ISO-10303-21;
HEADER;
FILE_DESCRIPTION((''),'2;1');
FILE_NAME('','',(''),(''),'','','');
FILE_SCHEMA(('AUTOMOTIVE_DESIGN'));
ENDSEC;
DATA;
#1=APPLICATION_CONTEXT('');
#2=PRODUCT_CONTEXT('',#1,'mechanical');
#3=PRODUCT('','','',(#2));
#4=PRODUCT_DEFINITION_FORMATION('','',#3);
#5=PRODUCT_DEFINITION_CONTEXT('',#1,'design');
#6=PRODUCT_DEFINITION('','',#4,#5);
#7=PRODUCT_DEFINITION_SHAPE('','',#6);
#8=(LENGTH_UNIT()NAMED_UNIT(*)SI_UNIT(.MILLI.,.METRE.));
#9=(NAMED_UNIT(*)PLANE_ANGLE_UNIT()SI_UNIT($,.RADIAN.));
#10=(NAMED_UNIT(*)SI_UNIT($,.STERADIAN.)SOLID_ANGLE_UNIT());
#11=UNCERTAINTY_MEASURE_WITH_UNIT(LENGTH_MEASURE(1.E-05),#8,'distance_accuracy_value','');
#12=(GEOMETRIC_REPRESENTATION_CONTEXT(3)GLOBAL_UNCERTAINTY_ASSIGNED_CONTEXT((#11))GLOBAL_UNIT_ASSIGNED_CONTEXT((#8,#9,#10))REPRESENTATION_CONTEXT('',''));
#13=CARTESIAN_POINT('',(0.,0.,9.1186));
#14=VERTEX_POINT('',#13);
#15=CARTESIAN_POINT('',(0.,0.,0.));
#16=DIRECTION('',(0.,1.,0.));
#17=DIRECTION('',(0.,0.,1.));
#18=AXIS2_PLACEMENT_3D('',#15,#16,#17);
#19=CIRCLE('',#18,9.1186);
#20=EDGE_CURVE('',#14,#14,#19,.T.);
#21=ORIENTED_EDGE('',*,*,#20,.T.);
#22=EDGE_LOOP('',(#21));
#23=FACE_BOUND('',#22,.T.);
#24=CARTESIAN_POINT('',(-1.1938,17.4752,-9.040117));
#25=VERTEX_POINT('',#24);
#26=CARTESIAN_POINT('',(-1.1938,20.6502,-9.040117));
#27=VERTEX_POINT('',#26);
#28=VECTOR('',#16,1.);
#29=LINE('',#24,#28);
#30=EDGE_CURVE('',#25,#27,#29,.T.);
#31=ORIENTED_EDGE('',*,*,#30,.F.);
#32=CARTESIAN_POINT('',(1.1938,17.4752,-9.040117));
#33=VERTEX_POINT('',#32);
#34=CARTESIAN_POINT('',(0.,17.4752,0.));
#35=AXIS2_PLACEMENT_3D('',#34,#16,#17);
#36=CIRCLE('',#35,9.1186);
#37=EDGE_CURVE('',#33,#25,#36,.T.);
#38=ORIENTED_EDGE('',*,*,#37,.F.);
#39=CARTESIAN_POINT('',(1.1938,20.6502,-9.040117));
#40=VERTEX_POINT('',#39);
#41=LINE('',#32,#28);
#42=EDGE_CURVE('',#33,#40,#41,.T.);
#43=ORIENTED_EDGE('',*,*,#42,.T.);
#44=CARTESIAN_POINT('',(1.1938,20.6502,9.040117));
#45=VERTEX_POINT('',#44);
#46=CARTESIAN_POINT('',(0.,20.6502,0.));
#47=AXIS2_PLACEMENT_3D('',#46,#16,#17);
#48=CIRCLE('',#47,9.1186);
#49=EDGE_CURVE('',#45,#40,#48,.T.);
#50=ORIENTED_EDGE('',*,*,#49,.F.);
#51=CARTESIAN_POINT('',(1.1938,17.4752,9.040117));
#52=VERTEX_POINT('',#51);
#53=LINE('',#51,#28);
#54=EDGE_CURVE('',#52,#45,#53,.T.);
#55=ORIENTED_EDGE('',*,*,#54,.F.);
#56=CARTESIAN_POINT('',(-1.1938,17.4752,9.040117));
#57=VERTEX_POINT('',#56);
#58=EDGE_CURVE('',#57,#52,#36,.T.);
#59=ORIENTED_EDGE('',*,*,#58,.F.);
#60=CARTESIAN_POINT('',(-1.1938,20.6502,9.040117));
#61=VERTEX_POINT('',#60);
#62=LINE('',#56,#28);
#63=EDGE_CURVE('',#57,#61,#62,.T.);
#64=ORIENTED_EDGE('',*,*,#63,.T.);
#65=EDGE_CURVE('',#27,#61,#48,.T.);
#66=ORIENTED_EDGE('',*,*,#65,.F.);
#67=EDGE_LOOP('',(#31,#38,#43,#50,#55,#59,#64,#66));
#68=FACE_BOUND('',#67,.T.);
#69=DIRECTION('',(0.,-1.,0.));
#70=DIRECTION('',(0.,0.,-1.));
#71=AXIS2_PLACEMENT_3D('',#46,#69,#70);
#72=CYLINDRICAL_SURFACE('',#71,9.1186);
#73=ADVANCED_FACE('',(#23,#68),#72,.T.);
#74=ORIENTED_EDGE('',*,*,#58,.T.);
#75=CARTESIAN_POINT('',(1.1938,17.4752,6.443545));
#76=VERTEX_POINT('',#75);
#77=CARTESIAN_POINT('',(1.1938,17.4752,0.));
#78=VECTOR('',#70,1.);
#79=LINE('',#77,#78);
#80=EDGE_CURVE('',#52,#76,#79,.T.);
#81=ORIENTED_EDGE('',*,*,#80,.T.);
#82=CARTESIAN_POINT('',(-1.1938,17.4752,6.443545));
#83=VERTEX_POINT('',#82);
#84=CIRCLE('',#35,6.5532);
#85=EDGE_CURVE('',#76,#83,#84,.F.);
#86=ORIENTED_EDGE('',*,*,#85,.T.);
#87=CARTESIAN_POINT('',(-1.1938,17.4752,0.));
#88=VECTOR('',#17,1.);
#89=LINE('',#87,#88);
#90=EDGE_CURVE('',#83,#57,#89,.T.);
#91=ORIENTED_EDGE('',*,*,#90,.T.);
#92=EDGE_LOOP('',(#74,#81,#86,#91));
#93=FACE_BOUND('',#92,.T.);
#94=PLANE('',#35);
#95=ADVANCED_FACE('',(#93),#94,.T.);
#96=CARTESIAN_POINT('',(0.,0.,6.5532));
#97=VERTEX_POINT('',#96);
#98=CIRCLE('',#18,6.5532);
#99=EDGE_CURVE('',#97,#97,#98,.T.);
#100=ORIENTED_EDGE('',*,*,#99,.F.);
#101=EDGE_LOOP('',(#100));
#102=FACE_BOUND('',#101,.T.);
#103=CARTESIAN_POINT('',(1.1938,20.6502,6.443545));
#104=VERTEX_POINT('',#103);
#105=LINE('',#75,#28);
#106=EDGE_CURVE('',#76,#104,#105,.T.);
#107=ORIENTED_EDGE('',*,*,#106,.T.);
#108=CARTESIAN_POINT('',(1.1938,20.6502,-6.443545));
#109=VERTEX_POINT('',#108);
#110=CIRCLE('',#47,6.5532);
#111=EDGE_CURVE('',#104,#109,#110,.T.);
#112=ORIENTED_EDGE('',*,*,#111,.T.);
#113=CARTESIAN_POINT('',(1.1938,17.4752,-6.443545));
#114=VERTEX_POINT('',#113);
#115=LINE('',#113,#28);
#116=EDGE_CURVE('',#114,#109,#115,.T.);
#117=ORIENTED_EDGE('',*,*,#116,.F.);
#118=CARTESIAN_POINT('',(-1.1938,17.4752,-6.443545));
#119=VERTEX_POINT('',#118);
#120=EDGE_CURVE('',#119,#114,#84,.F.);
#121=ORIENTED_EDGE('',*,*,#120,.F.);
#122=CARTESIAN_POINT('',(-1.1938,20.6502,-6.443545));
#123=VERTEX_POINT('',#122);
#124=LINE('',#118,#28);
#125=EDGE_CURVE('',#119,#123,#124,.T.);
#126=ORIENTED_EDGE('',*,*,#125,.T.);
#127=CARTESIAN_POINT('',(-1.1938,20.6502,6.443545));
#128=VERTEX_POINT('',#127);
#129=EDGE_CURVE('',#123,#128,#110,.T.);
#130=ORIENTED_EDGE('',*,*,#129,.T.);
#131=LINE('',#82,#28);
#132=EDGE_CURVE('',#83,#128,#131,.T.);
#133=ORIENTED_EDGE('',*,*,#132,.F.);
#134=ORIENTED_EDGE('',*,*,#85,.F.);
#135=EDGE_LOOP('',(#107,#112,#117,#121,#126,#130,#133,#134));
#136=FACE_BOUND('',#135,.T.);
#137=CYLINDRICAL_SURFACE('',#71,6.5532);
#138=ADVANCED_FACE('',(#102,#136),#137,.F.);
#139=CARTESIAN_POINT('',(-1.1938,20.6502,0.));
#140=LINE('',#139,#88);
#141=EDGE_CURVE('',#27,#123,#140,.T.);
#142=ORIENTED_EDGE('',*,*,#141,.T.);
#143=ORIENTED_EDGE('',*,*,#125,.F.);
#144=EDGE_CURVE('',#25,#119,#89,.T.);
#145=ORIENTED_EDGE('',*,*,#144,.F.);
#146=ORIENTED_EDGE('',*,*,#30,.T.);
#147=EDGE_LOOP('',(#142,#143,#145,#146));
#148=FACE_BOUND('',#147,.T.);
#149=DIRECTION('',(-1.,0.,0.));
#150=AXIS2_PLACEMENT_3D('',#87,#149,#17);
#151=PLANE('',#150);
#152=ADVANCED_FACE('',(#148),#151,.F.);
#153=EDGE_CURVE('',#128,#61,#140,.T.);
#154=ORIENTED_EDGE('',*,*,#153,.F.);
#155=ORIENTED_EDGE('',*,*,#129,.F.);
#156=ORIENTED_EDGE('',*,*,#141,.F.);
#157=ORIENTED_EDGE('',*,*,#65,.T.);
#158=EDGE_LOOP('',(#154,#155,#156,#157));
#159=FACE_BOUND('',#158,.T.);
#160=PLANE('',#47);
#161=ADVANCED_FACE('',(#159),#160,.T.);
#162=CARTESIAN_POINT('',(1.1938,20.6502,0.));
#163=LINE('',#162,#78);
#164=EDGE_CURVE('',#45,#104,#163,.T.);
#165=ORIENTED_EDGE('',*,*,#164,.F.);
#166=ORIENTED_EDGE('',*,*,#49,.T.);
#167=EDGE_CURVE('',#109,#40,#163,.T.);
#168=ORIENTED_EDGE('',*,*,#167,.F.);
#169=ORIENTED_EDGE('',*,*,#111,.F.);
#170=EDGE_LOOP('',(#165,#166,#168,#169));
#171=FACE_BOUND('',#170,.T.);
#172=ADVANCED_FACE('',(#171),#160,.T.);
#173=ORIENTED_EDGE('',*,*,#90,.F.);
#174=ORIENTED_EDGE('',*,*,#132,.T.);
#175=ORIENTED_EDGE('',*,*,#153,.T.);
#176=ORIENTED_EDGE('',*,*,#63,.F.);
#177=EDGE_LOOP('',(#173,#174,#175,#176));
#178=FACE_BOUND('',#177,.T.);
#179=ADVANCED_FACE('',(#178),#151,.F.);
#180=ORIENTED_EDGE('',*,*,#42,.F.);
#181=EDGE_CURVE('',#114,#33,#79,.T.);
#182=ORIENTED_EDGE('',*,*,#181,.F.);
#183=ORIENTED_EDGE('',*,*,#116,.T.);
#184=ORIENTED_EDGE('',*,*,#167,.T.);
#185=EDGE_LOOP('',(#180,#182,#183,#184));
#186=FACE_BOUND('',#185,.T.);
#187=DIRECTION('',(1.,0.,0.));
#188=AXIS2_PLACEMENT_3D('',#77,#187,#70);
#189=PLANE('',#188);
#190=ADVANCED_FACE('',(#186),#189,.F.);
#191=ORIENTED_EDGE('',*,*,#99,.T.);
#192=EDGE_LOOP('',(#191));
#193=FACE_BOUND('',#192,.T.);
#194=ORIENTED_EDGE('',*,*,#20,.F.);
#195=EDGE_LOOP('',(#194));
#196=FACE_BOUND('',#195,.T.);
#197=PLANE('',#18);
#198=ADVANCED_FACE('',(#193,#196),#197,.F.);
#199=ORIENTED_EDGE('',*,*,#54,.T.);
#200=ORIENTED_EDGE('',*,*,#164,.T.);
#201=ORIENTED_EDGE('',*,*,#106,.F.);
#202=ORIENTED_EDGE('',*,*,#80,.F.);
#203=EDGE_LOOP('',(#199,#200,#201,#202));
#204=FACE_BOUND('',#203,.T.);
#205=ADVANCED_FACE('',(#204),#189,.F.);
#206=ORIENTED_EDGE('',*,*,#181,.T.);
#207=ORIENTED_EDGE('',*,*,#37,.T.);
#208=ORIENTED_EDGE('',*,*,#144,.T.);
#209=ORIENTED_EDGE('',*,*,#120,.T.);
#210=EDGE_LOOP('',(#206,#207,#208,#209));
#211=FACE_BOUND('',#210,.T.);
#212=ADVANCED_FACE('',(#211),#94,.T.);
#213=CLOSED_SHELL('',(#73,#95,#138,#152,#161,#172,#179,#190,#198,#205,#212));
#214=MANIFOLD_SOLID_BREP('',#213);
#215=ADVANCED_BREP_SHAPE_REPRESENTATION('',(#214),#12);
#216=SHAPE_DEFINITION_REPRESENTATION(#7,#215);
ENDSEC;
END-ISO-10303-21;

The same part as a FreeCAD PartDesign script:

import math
import FreeCAD as App
import Part
import Sketcher

V = App.Vector
Q = App.Units.Quantity

doc = App.newDocument("Part")
body = doc.addObject("PartDesign::Body", "Body")

# Sketch on XZ plane
sketch1 = body.newObject("Sketcher::SketchObject", "Sketch")
sketch1.AttachmentSupport = (doc.getObject("XZ_Plane"), [""])
sketch1.MapMode = "FlatFace"
sketch1.addGeometry([
    Part.Circle(V(0, 0, 0), V(0, 0, 1), 9),
    Part.Circle(V(0, 0, 0), V(0, 0, 1), 7),
], False)
sketch1.addConstraint([
    Sketcher.Constraint("Coincident", 0, 3, -1, 1),
    Sketcher.Constraint("Coincident", 1, 3, -1, 1),
    Sketcher.Constraint("Diameter", 0, Q("0.718 in")),
    Sketcher.Constraint("Diameter", 1, Q("0.516 in")),
])
pad1 = body.newObject("PartDesign::Pad", "Pad")
pad1.Profile = sketch1
pad1.Length = Q("0.813 in")
pad1.Reversed = True

# Sketch on XZ plane
sketch2 = body.newObject("Sketcher::SketchObject", "Sketch001")
sketch2.AttachmentSupport = (doc.getObject("XZ_Plane"), [""])
sketch2.MapMode = "FlatFace"
sketch2.AttachmentOffset = App.Placement(V(0, 0, -0.813 * 25.4), App.Rotation())
sketch2.addGeometry([
    Part.ArcOfCircle(Part.Circle(V(0, 0, 0), V(0, 0, 1), 6.6), math.radians(-100), math.radians(-80)),  # 0
    Part.LineSegment(V(1.2, -6.4, 0), V(1.2, -9, 0)),  # 1
    Part.ArcOfCircle(Part.Circle(V(0, 0, 0), V(0, 0, 1), 9.1), math.radians(-97.52), math.radians(-82.48)),  # 2
    Part.LineSegment(V(-1.2, -9, 0), V(-1.2, -6.4, 0)),  # 3
    Part.LineSegment(V(1.2, 9, 0), V(1.2, 6.4, 0)),  # 4
    Part.ArcOfCircle(Part.Circle(V(0, 0, 0), V(0, 0, 1), 6.6), math.radians(80), math.radians(100)),  # 5
    Part.LineSegment(V(-1.2, 6.4, 0), V(-1.2, 9, 0)),  # 6
    Part.ArcOfCircle(Part.Circle(V(0, 0, 0), V(0, 0, 1), 9.1), math.radians(82.48), math.radians(97.52)),  # 7
], False)
sketch2.addConstraint([
    Sketcher.Constraint("Coincident", 0, 2, 1, 1),
    Sketcher.Constraint("Coincident", 1, 2, 2, 2),
    Sketcher.Constraint("Coincident", 2, 1, 3, 1),
    Sketcher.Constraint("Coincident", 3, 2, 0, 1),
    Sketcher.Constraint("Coincident", 4, 2, 5, 1),
    Sketcher.Constraint("Coincident", 5, 2, 6, 1),
    Sketcher.Constraint("Coincident", 6, 2, 7, 2),
    Sketcher.Constraint("Coincident", 7, 1, 4, 1),
    Sketcher.Constraint("Vertical", 1),
    Sketcher.Constraint("Vertical", 3),
    Sketcher.Constraint("Vertical", 4),
    Sketcher.Constraint("Vertical", 6),
    Sketcher.Constraint("Coincident", 0, 3, -1, 1),
    Sketcher.Constraint("Coincident", 2, 3, -1, 1),
    Sketcher.Constraint("Coincident", 5, 3, -1, 1),
    Sketcher.Constraint("Coincident", 7, 3, -1, 1),
    Sketcher.Constraint("Equal", 0, 5),
    Sketcher.Constraint("Equal", 2, 7),
    Sketcher.Constraint("Horizontal", 1, 2, 2, 1),
    Sketcher.Constraint("Horizontal", 4, 2, 5, 2),
    Sketcher.Constraint("Vertical", 1, 2, 4, 2),
    Sketcher.Constraint("Radius", 0, Q("0.258 in")),
    Sketcher.Constraint("Radius", 2, Q("0.359 in")),
    Sketcher.Constraint("DistanceX", -1, 1, 0, 2, Q("0.047 in")),
])
pocket1 = body.newObject("PartDesign::Pocket", "Pocket")
pocket1.Profile = sketch2
pocket1.Type = "TwoLengths"
pocket1.Length = 1
pocket1.Length2 = Q("0.125 in")

doc.recompute()
